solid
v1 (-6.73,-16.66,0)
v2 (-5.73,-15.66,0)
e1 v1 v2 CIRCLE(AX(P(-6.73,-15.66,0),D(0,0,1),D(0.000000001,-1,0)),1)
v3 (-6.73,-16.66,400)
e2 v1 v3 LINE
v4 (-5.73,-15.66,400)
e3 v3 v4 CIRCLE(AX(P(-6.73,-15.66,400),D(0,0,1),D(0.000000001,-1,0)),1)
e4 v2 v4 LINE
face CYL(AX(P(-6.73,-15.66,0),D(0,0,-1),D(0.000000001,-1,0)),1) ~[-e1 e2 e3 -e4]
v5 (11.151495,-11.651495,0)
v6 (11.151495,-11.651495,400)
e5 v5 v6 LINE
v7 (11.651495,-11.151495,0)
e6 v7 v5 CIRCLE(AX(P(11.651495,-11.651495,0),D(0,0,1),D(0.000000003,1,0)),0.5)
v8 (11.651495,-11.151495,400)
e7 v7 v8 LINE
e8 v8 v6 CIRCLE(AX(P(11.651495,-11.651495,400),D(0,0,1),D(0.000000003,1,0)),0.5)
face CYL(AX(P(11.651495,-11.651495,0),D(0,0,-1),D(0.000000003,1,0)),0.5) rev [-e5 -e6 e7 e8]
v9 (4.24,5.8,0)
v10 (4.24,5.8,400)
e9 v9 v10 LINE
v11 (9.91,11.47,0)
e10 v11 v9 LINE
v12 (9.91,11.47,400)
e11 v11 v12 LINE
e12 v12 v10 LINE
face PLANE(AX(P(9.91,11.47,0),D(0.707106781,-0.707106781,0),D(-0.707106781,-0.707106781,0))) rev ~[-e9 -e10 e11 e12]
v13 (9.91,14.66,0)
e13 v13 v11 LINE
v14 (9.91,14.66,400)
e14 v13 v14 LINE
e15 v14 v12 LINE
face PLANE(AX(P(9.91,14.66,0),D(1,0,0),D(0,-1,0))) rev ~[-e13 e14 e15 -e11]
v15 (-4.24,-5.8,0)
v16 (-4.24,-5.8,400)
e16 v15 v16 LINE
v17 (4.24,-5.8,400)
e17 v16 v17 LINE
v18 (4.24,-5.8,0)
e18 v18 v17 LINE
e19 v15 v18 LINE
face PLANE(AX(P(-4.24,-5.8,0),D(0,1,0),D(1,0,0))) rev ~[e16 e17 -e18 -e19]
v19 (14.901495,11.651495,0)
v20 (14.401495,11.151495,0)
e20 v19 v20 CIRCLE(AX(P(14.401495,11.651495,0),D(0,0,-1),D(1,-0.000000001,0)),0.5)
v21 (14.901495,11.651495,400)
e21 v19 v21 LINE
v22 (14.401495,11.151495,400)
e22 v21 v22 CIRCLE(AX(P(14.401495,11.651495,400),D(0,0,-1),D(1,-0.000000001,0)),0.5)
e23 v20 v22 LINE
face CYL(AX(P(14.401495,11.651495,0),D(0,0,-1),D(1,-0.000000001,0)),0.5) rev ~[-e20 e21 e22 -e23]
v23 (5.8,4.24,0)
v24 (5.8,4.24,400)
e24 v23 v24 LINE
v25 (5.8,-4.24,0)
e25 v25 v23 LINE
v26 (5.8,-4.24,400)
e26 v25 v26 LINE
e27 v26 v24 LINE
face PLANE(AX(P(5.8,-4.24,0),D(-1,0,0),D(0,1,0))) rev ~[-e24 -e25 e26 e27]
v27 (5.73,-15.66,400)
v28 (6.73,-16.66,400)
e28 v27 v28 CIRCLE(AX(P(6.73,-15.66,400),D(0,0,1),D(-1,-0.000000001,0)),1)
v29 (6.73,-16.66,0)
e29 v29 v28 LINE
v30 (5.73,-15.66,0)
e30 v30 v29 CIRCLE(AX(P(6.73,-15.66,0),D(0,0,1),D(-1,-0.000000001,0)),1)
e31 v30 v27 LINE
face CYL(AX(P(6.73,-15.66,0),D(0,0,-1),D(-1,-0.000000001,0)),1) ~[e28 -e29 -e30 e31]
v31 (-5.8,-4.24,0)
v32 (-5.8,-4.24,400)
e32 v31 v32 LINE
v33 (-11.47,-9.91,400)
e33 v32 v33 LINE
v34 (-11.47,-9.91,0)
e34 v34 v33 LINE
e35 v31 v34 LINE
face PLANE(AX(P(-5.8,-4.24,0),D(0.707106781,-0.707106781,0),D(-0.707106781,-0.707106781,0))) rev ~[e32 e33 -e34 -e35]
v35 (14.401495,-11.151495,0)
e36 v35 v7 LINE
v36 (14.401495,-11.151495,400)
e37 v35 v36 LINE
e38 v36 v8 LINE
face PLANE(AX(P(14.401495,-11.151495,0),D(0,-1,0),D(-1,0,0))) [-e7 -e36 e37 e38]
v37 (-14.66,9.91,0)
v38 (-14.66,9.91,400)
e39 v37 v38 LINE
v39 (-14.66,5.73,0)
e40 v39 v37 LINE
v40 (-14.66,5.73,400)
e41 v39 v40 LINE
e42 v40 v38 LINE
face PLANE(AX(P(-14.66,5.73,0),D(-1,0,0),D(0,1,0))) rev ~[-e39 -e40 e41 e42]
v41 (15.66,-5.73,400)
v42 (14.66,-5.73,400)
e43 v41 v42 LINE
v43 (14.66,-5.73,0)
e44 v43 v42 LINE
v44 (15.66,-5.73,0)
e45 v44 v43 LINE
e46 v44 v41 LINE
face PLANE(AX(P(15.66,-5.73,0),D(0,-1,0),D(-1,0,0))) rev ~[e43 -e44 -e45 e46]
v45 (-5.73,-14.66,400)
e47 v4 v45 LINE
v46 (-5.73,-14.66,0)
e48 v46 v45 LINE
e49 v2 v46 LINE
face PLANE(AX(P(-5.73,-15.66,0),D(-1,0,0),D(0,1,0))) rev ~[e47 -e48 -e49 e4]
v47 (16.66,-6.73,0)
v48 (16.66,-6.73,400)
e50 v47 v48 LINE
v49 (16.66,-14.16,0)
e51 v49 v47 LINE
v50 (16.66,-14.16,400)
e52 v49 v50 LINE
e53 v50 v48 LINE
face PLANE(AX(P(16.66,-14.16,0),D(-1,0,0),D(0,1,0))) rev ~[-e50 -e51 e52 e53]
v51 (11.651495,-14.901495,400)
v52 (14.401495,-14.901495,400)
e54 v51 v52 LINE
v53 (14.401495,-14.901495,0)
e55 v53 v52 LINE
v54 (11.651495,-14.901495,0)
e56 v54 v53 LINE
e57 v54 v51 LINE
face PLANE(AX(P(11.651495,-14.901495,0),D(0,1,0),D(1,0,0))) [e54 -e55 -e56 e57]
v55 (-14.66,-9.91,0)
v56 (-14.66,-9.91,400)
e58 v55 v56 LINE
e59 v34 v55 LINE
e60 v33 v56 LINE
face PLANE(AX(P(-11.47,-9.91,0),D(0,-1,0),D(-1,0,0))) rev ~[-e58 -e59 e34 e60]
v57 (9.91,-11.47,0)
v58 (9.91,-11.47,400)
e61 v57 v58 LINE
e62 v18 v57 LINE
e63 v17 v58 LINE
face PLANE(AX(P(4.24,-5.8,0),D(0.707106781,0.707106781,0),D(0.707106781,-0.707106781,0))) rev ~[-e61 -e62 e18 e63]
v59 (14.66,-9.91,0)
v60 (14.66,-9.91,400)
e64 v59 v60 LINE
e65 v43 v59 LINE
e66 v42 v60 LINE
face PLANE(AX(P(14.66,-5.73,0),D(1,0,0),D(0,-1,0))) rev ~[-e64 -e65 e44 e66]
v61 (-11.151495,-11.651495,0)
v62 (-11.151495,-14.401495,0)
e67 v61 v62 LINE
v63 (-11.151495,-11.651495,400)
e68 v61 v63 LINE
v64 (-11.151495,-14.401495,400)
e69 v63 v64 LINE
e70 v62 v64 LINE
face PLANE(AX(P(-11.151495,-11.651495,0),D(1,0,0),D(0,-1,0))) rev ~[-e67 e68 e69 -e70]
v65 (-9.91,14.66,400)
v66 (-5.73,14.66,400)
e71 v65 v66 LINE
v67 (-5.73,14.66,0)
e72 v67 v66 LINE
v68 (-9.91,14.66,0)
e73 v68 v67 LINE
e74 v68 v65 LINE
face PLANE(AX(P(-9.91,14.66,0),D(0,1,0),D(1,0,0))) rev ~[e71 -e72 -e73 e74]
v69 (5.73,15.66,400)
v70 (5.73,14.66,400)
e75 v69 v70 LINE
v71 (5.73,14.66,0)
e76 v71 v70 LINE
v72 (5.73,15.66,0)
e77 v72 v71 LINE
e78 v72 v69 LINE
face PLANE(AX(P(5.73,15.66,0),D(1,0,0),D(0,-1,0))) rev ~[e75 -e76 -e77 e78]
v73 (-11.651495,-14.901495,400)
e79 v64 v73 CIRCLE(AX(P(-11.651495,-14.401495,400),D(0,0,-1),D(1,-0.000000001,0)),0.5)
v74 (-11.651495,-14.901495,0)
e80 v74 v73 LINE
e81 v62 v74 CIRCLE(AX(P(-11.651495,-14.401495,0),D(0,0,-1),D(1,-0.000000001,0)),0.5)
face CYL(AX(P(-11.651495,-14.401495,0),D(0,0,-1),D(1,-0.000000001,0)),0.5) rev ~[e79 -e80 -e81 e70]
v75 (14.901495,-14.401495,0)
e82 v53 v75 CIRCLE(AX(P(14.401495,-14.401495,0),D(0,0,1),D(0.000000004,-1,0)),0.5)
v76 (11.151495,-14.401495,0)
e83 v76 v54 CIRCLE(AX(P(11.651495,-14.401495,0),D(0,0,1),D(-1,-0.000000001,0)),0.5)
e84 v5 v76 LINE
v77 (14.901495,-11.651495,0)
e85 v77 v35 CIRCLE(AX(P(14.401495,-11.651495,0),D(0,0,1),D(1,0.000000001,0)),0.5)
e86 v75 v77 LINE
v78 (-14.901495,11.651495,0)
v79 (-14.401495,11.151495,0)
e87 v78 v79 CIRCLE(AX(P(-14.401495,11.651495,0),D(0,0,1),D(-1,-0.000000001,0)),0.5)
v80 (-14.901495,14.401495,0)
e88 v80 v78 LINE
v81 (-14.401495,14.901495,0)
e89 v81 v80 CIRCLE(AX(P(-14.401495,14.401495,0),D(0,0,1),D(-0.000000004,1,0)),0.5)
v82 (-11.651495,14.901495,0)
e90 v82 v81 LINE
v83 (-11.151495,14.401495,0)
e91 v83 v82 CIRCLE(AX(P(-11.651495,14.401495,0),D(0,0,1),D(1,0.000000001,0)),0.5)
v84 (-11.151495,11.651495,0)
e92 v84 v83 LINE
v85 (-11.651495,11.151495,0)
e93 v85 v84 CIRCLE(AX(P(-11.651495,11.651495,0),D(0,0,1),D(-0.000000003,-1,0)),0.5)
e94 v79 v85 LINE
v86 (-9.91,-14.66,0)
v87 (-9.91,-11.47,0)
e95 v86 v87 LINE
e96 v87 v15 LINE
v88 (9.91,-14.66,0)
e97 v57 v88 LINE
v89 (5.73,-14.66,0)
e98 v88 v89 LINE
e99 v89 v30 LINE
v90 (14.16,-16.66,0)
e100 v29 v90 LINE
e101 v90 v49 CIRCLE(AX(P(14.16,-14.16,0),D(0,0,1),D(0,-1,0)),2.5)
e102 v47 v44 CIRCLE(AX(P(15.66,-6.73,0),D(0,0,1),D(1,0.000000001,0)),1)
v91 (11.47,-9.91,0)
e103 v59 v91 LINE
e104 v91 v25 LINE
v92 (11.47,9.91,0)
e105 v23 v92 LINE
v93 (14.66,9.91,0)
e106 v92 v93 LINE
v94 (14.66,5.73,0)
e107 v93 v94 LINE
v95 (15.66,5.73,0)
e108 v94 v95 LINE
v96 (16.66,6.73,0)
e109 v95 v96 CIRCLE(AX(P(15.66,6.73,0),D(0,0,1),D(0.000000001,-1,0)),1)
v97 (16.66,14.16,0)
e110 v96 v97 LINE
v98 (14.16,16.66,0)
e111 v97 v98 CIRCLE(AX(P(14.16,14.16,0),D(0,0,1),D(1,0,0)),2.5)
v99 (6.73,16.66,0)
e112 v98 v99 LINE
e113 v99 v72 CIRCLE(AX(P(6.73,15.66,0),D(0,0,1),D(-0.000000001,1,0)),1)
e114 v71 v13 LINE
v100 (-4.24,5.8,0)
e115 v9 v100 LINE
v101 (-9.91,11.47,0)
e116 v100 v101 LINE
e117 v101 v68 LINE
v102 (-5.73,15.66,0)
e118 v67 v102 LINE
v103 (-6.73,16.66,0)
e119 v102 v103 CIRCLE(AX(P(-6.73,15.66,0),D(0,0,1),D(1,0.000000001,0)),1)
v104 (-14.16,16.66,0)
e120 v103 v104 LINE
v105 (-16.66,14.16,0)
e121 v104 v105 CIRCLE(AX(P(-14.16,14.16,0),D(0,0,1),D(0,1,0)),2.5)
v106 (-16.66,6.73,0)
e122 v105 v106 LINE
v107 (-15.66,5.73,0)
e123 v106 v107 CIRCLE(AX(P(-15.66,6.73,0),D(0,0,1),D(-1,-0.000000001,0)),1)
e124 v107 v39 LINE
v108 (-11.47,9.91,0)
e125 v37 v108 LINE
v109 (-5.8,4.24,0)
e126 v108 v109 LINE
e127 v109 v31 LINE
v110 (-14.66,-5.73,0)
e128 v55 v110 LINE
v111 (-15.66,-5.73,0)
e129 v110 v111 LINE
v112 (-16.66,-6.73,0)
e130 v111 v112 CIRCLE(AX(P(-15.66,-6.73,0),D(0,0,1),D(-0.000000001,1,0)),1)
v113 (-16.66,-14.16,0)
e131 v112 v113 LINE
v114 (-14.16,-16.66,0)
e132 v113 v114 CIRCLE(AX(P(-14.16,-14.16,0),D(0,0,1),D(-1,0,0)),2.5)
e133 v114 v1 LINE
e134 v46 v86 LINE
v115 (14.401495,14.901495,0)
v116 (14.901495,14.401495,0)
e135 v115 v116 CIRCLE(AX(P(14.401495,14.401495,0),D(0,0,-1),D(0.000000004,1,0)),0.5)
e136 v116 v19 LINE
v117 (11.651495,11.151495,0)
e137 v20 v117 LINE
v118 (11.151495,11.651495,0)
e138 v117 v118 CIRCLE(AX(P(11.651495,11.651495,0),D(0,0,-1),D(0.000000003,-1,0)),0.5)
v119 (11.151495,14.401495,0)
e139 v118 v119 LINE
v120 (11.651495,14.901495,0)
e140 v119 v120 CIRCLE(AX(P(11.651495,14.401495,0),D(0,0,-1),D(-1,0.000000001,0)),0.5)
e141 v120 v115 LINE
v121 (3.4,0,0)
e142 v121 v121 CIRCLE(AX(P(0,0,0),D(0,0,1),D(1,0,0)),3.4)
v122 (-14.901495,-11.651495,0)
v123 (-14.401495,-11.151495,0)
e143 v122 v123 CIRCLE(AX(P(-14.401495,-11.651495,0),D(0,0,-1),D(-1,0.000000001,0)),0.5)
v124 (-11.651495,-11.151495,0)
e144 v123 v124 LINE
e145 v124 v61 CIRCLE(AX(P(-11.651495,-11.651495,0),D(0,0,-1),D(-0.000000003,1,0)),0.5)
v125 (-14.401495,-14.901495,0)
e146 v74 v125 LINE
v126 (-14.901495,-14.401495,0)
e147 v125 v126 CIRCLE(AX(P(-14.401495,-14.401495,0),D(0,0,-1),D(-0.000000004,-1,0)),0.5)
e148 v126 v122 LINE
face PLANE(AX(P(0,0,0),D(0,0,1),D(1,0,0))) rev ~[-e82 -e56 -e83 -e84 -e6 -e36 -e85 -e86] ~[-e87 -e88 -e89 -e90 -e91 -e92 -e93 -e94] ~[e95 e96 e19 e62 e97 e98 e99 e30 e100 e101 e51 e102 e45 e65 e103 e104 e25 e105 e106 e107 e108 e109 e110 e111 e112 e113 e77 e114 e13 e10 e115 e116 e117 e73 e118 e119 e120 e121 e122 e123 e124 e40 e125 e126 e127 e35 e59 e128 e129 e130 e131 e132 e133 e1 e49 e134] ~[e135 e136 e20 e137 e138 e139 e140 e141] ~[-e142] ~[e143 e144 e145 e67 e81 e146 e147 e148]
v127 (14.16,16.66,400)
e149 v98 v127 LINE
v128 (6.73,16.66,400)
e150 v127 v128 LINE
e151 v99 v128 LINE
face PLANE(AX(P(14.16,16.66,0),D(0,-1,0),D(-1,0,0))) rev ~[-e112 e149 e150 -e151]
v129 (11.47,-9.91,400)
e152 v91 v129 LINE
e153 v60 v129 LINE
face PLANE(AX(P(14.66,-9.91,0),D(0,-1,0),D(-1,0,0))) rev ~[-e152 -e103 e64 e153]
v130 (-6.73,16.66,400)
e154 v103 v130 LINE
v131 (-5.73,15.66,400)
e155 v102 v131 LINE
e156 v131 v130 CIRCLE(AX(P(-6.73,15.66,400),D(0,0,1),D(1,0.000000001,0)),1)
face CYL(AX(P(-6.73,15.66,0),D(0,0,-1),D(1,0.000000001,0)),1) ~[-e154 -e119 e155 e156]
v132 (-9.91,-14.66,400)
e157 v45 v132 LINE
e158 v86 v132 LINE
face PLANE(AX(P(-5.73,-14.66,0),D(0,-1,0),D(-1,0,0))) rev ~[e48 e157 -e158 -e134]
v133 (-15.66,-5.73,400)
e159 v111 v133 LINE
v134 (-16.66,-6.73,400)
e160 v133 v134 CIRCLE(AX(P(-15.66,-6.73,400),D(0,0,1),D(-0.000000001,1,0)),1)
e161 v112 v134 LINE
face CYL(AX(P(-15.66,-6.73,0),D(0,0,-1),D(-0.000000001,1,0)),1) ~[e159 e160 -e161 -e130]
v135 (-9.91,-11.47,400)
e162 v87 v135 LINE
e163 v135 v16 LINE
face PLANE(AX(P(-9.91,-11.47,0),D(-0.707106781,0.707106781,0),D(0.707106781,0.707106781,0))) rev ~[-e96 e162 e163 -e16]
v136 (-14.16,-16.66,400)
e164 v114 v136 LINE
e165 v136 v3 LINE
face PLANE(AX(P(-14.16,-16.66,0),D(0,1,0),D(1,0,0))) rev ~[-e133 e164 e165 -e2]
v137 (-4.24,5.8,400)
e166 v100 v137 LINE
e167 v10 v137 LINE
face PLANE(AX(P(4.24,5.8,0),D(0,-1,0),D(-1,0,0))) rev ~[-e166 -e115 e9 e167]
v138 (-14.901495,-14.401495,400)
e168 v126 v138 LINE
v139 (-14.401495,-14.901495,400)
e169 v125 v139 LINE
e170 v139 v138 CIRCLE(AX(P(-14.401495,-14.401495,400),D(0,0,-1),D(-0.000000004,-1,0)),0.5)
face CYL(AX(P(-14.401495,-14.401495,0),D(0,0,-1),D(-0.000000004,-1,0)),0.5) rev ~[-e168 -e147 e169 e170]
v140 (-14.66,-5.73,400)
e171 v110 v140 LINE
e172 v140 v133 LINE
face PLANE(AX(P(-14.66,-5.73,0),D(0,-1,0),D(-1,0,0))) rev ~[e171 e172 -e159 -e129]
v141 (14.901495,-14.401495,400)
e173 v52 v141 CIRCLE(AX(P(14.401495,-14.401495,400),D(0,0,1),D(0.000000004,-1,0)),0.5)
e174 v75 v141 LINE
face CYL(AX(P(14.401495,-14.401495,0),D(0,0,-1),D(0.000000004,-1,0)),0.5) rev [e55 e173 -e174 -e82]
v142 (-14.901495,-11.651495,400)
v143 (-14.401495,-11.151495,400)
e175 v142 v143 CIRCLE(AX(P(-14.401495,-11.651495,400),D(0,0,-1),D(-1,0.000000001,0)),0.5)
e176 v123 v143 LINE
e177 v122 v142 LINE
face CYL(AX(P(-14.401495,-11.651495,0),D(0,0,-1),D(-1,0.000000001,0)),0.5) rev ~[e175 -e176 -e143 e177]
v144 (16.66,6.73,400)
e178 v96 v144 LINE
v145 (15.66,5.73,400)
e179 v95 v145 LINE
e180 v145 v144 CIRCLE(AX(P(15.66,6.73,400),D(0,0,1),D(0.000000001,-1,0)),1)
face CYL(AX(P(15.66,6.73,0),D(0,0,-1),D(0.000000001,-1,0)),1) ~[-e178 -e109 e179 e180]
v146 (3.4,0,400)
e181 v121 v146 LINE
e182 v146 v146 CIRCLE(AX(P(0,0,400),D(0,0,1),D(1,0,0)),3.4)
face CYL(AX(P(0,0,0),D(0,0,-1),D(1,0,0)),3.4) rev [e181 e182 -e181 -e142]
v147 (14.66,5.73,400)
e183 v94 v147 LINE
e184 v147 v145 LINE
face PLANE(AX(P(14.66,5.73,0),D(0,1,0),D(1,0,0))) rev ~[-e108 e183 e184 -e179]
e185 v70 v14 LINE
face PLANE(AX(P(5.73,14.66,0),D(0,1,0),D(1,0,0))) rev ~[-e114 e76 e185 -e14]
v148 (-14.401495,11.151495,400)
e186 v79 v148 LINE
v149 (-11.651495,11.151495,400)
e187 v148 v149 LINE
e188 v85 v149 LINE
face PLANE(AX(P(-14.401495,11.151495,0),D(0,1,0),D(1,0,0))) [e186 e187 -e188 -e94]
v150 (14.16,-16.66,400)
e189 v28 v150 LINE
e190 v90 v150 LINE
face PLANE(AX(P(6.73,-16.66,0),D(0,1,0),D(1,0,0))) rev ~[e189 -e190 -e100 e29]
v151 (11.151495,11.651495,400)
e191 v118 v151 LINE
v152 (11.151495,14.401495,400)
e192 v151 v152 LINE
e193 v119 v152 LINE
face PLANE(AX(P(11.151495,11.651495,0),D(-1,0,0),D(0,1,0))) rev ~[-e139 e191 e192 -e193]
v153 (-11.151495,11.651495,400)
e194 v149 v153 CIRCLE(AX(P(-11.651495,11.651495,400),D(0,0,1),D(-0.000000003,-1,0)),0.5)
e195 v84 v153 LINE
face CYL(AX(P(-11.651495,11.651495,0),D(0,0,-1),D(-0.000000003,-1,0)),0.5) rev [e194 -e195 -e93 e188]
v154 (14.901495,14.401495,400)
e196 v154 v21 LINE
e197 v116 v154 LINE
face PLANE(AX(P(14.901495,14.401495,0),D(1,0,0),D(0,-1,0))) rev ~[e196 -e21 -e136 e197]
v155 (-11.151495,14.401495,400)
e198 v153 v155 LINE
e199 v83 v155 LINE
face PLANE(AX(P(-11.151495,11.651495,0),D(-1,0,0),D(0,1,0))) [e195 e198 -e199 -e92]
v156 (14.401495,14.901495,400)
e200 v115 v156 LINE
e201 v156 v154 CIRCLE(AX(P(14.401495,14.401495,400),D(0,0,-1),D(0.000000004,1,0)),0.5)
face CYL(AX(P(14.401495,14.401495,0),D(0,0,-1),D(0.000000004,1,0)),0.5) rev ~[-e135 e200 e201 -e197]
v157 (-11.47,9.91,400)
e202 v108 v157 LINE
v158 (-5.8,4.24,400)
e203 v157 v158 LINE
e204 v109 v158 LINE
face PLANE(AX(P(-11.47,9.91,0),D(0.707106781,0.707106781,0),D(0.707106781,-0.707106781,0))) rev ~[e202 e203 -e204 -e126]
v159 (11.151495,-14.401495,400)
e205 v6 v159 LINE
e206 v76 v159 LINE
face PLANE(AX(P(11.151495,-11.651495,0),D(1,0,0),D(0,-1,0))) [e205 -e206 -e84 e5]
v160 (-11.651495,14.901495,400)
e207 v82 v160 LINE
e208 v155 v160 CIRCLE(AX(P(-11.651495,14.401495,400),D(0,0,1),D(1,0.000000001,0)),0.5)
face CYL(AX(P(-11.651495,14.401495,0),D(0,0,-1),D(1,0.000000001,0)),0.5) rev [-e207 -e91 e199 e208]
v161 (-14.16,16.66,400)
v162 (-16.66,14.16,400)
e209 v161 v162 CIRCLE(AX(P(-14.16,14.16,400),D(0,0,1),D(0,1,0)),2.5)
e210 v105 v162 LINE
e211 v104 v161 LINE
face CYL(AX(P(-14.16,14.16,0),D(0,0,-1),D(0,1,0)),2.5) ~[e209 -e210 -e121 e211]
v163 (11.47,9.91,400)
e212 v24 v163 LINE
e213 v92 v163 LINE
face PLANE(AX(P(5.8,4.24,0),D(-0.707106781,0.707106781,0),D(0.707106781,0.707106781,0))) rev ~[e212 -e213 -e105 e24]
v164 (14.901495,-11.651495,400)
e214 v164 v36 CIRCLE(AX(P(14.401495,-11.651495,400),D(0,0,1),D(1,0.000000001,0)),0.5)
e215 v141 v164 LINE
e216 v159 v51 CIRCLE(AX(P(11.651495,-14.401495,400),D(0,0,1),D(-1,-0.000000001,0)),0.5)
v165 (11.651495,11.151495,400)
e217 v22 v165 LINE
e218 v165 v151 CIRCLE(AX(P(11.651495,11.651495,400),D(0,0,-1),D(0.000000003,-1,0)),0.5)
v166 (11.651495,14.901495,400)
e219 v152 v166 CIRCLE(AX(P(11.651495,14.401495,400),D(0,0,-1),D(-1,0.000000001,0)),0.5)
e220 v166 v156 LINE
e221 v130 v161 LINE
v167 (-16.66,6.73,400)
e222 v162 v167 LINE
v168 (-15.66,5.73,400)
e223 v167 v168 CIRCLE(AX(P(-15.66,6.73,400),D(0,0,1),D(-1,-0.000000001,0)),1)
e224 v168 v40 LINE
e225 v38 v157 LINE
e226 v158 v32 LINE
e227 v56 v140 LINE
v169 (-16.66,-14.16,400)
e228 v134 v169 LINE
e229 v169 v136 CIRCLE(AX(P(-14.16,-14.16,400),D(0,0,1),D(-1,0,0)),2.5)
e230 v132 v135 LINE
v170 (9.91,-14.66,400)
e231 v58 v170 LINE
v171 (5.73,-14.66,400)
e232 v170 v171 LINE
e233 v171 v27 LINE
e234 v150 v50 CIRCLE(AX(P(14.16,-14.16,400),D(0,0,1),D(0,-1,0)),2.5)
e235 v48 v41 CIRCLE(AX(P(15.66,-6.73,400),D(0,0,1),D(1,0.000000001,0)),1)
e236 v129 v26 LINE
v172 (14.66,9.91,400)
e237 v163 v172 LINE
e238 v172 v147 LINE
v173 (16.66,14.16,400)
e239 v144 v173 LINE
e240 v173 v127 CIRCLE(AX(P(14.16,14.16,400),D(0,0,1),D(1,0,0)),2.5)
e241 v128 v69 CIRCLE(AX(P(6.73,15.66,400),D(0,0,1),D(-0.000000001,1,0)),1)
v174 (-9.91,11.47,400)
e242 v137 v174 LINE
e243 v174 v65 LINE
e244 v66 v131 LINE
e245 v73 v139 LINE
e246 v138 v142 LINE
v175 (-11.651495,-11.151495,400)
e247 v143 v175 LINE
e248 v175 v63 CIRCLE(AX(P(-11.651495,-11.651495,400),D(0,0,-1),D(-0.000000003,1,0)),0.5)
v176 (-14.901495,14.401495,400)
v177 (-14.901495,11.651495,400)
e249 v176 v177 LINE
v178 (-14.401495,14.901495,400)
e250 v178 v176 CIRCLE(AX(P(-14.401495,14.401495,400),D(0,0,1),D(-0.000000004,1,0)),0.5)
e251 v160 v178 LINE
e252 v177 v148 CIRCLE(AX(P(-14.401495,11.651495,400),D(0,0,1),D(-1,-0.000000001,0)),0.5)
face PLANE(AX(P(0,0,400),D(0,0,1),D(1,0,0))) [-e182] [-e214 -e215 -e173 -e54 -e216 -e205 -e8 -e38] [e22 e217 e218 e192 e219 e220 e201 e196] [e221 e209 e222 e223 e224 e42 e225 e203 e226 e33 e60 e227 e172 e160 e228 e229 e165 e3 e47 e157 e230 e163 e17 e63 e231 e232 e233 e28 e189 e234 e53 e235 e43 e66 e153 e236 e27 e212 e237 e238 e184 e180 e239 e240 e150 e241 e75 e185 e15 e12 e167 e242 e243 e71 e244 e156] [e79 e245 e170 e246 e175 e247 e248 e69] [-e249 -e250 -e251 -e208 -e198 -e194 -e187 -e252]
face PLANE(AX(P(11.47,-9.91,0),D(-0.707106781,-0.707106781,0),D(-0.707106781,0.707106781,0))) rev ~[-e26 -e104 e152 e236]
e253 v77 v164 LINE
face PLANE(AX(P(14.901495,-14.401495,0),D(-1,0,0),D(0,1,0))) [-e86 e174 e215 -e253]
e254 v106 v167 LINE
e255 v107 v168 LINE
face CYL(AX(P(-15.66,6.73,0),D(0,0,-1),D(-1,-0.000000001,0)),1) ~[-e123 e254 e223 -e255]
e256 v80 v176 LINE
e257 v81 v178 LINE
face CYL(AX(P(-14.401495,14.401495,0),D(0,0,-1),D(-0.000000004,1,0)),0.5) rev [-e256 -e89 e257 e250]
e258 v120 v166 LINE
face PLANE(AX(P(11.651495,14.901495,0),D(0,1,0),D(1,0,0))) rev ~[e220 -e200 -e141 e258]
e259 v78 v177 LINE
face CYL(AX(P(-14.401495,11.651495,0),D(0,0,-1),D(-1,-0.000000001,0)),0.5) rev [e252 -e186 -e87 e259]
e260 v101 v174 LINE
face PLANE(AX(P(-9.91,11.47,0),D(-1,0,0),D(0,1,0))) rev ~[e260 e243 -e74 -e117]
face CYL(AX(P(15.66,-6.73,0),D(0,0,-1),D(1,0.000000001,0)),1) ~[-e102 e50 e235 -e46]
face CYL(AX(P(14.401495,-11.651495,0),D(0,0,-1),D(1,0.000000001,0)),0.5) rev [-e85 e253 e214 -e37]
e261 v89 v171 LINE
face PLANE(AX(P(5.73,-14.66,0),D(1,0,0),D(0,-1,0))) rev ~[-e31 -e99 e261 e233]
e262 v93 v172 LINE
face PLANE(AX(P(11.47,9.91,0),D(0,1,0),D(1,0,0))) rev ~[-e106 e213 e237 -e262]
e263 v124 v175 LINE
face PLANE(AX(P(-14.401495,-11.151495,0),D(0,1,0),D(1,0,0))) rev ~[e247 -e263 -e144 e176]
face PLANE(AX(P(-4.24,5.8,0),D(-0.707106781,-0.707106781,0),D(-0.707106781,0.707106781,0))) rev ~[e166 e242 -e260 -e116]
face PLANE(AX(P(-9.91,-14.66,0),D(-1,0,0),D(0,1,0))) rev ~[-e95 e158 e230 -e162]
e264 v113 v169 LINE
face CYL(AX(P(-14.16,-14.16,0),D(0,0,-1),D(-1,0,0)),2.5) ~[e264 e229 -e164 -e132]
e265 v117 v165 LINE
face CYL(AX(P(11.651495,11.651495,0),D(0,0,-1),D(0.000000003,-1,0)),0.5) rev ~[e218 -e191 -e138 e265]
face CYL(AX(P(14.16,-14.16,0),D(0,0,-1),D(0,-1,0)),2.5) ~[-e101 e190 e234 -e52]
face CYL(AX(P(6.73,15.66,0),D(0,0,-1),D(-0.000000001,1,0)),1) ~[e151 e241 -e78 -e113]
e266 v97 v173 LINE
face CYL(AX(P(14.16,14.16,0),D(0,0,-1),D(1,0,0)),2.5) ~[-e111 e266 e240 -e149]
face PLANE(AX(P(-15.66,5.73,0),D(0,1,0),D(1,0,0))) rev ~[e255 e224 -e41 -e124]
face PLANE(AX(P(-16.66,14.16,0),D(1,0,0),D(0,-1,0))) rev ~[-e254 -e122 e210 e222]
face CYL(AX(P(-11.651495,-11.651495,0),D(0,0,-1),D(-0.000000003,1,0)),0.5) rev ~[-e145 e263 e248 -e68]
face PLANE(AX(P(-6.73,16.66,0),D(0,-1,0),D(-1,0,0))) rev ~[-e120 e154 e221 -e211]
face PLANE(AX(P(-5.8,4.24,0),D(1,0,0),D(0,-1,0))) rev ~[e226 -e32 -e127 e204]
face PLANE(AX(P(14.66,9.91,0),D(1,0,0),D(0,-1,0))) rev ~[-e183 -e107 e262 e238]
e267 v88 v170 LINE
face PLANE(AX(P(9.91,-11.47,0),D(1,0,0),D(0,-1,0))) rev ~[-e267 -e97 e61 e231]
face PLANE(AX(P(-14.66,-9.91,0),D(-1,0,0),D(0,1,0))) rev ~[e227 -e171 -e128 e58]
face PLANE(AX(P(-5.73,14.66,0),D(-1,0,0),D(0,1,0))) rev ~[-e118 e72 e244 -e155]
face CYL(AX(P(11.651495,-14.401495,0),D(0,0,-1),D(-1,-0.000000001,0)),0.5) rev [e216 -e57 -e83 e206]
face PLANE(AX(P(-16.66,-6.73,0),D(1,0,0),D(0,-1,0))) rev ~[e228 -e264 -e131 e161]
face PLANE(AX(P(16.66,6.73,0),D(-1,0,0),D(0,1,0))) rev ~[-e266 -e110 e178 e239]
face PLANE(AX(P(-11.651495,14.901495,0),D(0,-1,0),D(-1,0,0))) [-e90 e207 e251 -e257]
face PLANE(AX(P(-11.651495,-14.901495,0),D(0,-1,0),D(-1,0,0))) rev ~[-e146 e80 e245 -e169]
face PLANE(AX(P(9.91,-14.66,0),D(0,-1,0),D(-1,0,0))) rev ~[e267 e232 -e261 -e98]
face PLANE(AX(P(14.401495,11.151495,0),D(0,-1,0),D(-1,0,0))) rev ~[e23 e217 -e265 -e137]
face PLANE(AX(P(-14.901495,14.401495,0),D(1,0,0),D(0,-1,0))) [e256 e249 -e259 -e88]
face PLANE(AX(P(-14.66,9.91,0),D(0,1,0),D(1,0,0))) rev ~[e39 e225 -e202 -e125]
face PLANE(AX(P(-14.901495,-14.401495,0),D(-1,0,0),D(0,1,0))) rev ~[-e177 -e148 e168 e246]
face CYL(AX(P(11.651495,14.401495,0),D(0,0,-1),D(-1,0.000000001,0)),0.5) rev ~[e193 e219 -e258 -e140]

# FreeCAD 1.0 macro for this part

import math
import FreeCAD as App
import Part
import Sketcher
from FreeCAD import Vector

doc = App.newDocument("Part")
params = doc.addObject("Spreadsheet::Sheet", "Params")
for row, (alias, value) in enumerate([
    ("sketch1_radius", "1 mm"),
    ("sketch1_diameter", "6.8 mm"),
    ("sketch1_radius2", "2.5 mm"),
    ("sketch1_radius3", "0.5 mm"),
    ("sketch1_width", "1 mm"),
    ("pad1_length", "400 mm"),
], start=1):
    params.set(f"A{row}", alias)
    params.set(f"B{row}", "=" + value)
    params.setAlias(f"B{row}", alias)

body = doc.addObject("PartDesign::Body", "Body")

sketch1 = body.newObject("Sketcher::SketchObject", "Sketch")
sketch1.AttachmentSupport = (doc.getObject("XY_Plane"), [""])
sketch1.MapMode = "FlatFace"
sketch1.addGeometry(Part.LineSegment(Vector(5.8, -4.24, 0), Vector(5.8, 4.24, 0)), False)
sketch1.addGeometry(Part.LineSegment(Vector(5.8, 4.24, 0), Vector(11.47, 9.91, 0)), False)
sketch1.addGeometry(Part.LineSegment(Vector(11.47, 9.91, 0), Vector(14.66, 9.91, 0)), False)
sketch1.addGeometry(Part.LineSegment(Vector(14.66, 9.91, 0), Vector(14.66, 5.73, 0)), False)
sketch1.addGeometry(Part.LineSegment(Vector(14.66, 5.73, 0), Vector(15.66, 5.73, 0)), False)
sketch1.addGeometry(Part.ArcOfCircle(Part.Circle(Vector(15.66, 6.73, 0), Vector(0, 0, 1), 1), math.radians(-90), math.radians(0)), False)
sketch1.addGeometry(Part.LineSegment(Vector(16.66, 6.73, 0), Vector(16.66, 14.16, 0)), False)
sketch1.addGeometry(Part.ArcOfCircle(Part.Circle(Vector(14.16, 14.16, 0), Vector(0, 0, 1), 2.5), math.radians(0), math.radians(90)), False)
sketch1.addGeometry(Part.LineSegment(Vector(14.16, 16.66, 0), Vector(6.73, 16.66, 0)), False)
sketch1.addGeometry(Part.ArcOfCircle(Part.Circle(Vector(6.73, 15.66, 0), Vector(0, 0, 1), 1), math.radians(90), math.radians(180)), False)
sketch1.addGeometry(Part.LineSegment(Vector(5.73, 15.66, 0), Vector(5.73, 14.66, 0)), False)
sketch1.addGeometry(Part.LineSegment(Vector(5.73, 14.66, 0), Vector(9.91, 14.66, 0)), False)
sketch1.addGeometry(Part.LineSegment(Vector(9.91, 14.66, 0), Vector(9.91, 11.47, 0)), False)
sketch1.addGeometry(Part.LineSegment(Vector(9.91, 11.47, 0), Vector(4.24, 5.8, 0)), False)
sketch1.addGeometry(Part.LineSegment(Vector(4.24, 5.8, 0), Vector(-4.24, 5.8, 0)), False)
sketch1.addGeometry(Part.LineSegment(Vector(-4.24, 5.8, 0), Vector(-9.91, 11.47, 0)), False)
sketch1.addGeometry(Part.LineSegment(Vector(-9.91, 11.47, 0), Vector(-9.91, 14.66, 0)), False)
sketch1.addGeometry(Part.LineSegment(Vector(-9.91, 14.66, 0), Vector(-5.73, 14.66, 0)), False)
sketch1.addGeometry(Part.LineSegment(Vector(-5.73, 14.66, 0), Vector(-5.73, 15.66, 0)), False)
sketch1.addGeometry(Part.ArcOfCircle(Part.Circle(Vector(-6.73, 15.66, 0), Vector(0, 0, 1), 1), math.radians(0), math.radians(90)), False)
sketch1.addGeometry(Part.LineSegment(Vector(-6.73, 16.66, 0), Vector(-14.16, 16.66, 0)), False)
sketch1.addGeometry(Part.ArcOfCircle(Part.Circle(Vector(-14.16, 14.16, 0), Vector(0, 0, 1), 2.5), math.radians(90), math.radians(180)), False)
sketch1.addGeometry(Part.LineSegment(Vector(-16.66, 14.16, 0), Vector(-16.66, 6.73, 0)), False)
sketch1.addGeometry(Part.ArcOfCircle(Part.Circle(Vector(-15.66, 6.73, 0), Vector(0, 0, 1), 1), math.radians(-180), math.radians(-90)), False)
sketch1.addGeometry(Part.LineSegment(Vector(-15.66, 5.73, 0), Vector(-14.66, 5.73, 0)), False)
sketch1.addGeometry(Part.LineSegment(Vector(-14.66, 5.73, 0), Vector(-14.66, 9.91, 0)), False)
sketch1.addGeometry(Part.LineSegment(Vector(-14.66, 9.91, 0), Vector(-11.47, 9.91, 0)), False)
sketch1.addGeometry(Part.LineSegment(Vector(-11.47, 9.91, 0), Vector(-5.8, 4.24, 0)), False)
sketch1.addGeometry(Part.LineSegment(Vector(-5.8, 4.24, 0), Vector(-5.8, -4.24, 0)), False)
sketch1.addGeometry(Part.LineSegment(Vector(-5.8, -4.24, 0), Vector(-11.47, -9.91, 0)), False)
sketch1.addGeometry(Part.LineSegment(Vector(-11.47, -9.91, 0), Vector(-14.66, -9.91, 0)), False)
sketch1.addGeometry(Part.LineSegment(Vector(-14.66, -9.91, 0), Vector(-14.66, -5.73, 0)), False)
sketch1.addGeometry(Part.LineSegment(Vector(-14.66, -5.73, 0), Vector(-15.66, -5.73, 0)), False)
sketch1.addGeometry(Part.ArcOfCircle(Part.Circle(Vector(-15.66, -6.73, 0), Vector(0, 0, 1), 1), math.radians(90), math.radians(180)), False)
sketch1.addGeometry(Part.LineSegment(Vector(-16.66, -6.73, 0), Vector(-16.66, -14.16, 0)), False)
sketch1.addGeometry(Part.ArcOfCircle(Part.Circle(Vector(-14.16, -14.16, 0), Vector(0, 0, 1), 2.5), math.radians(180), math.radians(270)), False)
sketch1.addGeometry(Part.LineSegment(Vector(-14.16, -16.66, 0), Vector(-6.73, -16.66, 0)), False)
sketch1.addGeometry(Part.ArcOfCircle(Part.Circle(Vector(-6.73, -15.66, 0), Vector(0, 0, 1), 1), math.radians(-90), math.radians(0)), False)
sketch1.addGeometry(Part.LineSegment(Vector(-5.73, -15.66, 0), Vector(-5.73, -14.66, 0)), False)
sketch1.addGeometry(Part.LineSegment(Vector(-5.73, -14.66, 0), Vector(-9.91, -14.66, 0)), False)
sketch1.addGeometry(Part.LineSegment(Vector(-9.91, -14.66, 0), Vector(-9.91, -11.47, 0)), False)
sketch1.addGeometry(Part.LineSegment(Vector(-9.91, -11.47, 0), Vector(-4.24, -5.8, 0)), False)
sketch1.addGeometry(Part.LineSegment(Vector(-4.24, -5.8, 0), Vector(4.24, -5.8, 0)), False)
sketch1.addGeometry(Part.LineSegment(Vector(4.24, -5.8, 0), Vector(9.91, -11.47, 0)), False)
sketch1.addGeometry(Part.LineSegment(Vector(9.91, -11.47, 0), Vector(9.91, -14.66, 0)), False)
sketch1.addGeometry(Part.LineSegment(Vector(9.91, -14.66, 0), Vector(5.73, -14.66, 0)), False)
sketch1.addGeometry(Part.LineSegment(Vector(5.73, -14.66, 0), Vector(5.73, -15.66, 0)), False)
sketch1.addGeometry(Part.ArcOfCircle(Part.Circle(Vector(6.73, -15.66, 0), Vector(0, 0, 1), 1), math.radians(-180), math.radians(-90)), False)
sketch1.addGeometry(Part.LineSegment(Vector(6.73, -16.66, 0), Vector(14.16, -16.66, 0)), False)
sketch1.addGeometry(Part.ArcOfCircle(Part.Circle(Vector(14.16, -14.16, 0), Vector(0, 0, 1), 2.5), math.radians(-90), math.radians(0)), False)
sketch1.addGeometry(Part.LineSegment(Vector(16.66, -14.16, 0), Vector(16.66, -6.73, 0)), False)
sketch1.addGeometry(Part.ArcOfCircle(Part.Circle(Vector(15.66, -6.73, 0), Vector(0, 0, 1), 1), math.radians(0), math.radians(90)), False)
sketch1.addGeometry(Part.LineSegment(Vector(15.66, -5.73, 0), Vector(14.66, -5.73, 0)), False)
sketch1.addGeometry(Part.LineSegment(Vector(14.66, -5.73, 0), Vector(14.66, -9.91, 0)), False)
sketch1.addGeometry(Part.LineSegment(Vector(14.66, -9.91, 0), Vector(11.47, -9.91, 0)), False)
sketch1.addGeometry(Part.LineSegment(Vector(11.47, -9.91, 0), Vector(5.8, -4.24, 0)), False)
sketch1.addGeometry(Part.ArcOfCircle(Part.Circle(Vector(-11.65, -14.4, 0), Vector(0, 0, 1), 0.5), math.radians(-90), math.radians(0)), False)
sketch1.addGeometry(Part.LineSegment(Vector(-11.65, -14.9, 0), Vector(-14.4, -14.9, 0)), False)
sketch1.addGeometry(Part.ArcOfCircle(Part.Circle(Vector(-14.4, -14.4, 0), Vector(0, 0, 1), 0.5), math.radians(-180), math.radians(-90)), False)
sketch1.addGeometry(Part.LineSegment(Vector(-14.9, -14.4, 0), Vector(-14.9, -11.65, 0)), False)
sketch1.addGeometry(Part.ArcOfCircle(Part.Circle(Vector(-14.4, -11.65, 0), Vector(0, 0, 1), 0.5), math.radians(90), math.radians(180)), False)
sketch1.addGeometry(Part.LineSegment(Vector(-14.4, -11.15, 0), Vector(-11.65, -11.15, 0)), False)
sketch1.addGeometry(Part.ArcOfCircle(Part.Circle(Vector(-11.65, -11.65, 0), Vector(0, 0, 1), 0.5), math.radians(0), math.radians(90)), False)
sketch1.addGeometry(Part.LineSegment(Vector(-11.15, -11.65, 0), Vector(-11.15, -14.4, 0)), False)
sketch1.addGeometry(Part.Circle(Vector(0, 0, 0), Vector(0, 0, 1), 3.4), False)
sketch1.addGeometry(Part.LineSegment(Vector(14.9, -11.65, 0), Vector(14.9, -14.4, 0)), False)
sketch1.addGeometry(Part.ArcOfCircle(Part.Circle(Vector(14.4, -14.4, 0), Vector(0, 0, 1), 0.5), math.radians(-90), math.radians(0)), False)
sketch1.addGeometry(Part.LineSegment(Vector(14.4, -14.9, 0), Vector(11.65, -14.9, 0)), False)
sketch1.addGeometry(Part.ArcOfCircle(Part.Circle(Vector(11.65, -14.4, 0), Vector(0, 0, 1), 0.5), math.radians(180), math.radians(270)), False)
sketch1.addGeometry(Part.LineSegment(Vector(11.15, -14.4, 0), Vector(11.15, -11.65, 0)), False)
sketch1.addGeometry(Part.ArcOfCircle(Part.Circle(Vector(11.65, -11.65, 0), Vector(0, 0, 1), 0.5), math.radians(90), math.radians(180)), False)
sketch1.addGeometry(Part.LineSegment(Vector(11.65, -11.15, 0), Vector(14.4, -11.15, 0)), False)
sketch1.addGeometry(Part.ArcOfCircle(Part.Circle(Vector(14.4, -11.65, 0), Vector(0, 0, 1), 0.5), math.radians(0), math.radians(90)), False)
sketch1.addGeometry(Part.LineSegment(Vector(-14.9, 11.65, 0), Vector(-14.9, 14.4, 0)), False)
sketch1.addGeometry(Part.ArcOfCircle(Part.Circle(Vector(-14.4, 14.4, 0), Vector(0, 0, 1), 0.5), math.radians(90), math.radians(180)), False)
sketch1.addGeometry(Part.LineSegment(Vector(-14.4, 14.9, 0), Vector(-11.65, 14.9, 0)), False)
sketch1.addGeometry(Part.ArcOfCircle(Part.Circle(Vector(-11.65, 14.4, 0), Vector(0, 0, 1), 0.5), math.radians(0), math.radians(90)), False)
sketch1.addGeometry(Part.LineSegment(Vector(-11.15, 14.4, 0), Vector(-11.15, 11.65, 0)), False)
sketch1.addGeometry(Part.ArcOfCircle(Part.Circle(Vector(-11.65, 11.65, 0), Vector(0, 0, 1), 0.5), math.radians(-90), math.radians(0)), False)
sketch1.addGeometry(Part.LineSegment(Vector(-11.65, 11.15, 0), Vector(-14.4, 11.15, 0)), False)
sketch1.addGeometry(Part.ArcOfCircle(Part.Circle(Vector(-14.4, 11.65, 0), Vector(0, 0, 1), 0.5), math.radians(180), math.radians(270)), False)
sketch1.addGeometry(Part.ArcOfCircle(Part.Circle(Vector(11.65, 14.4, 0), Vector(0, 0, 1), 0.5), math.radians(90), math.radians(180)), False)
sketch1.addGeometry(Part.LineSegment(Vector(11.65, 14.9, 0), Vector(14.4, 14.9, 0)), False)
sketch1.addGeometry(Part.ArcOfCircle(Part.Circle(Vector(14.4, 14.4, 0), Vector(0, 0, 1), 0.5), math.radians(0), math.radians(90)), False)
sketch1.addGeometry(Part.LineSegment(Vector(14.9, 14.4, 0), Vector(14.9, 11.65, 0)), False)
sketch1.addGeometry(Part.ArcOfCircle(Part.Circle(Vector(14.4, 11.65, 0), Vector(0, 0, 1), 0.5), math.radians(-90), math.radians(0)), False)
sketch1.addGeometry(Part.LineSegment(Vector(14.4, 11.15, 0), Vector(11.65, 11.15, 0)), False)
sketch1.addGeometry(Part.ArcOfCircle(Part.Circle(Vector(11.65, 11.65, 0), Vector(0, 0, 1), 0.5), math.radians(180), math.radians(270)), False)
sketch1.addGeometry(Part.LineSegment(Vector(11.15, 11.65, 0), Vector(11.15, 14.4, 0)), False)
sketch1.addConstraint(Sketcher.Constraint("Coincident", 0, 2, 1, 1))
sketch1.addConstraint(Sketcher.Constraint("Coincident", 1, 2, 2, 1))
sketch1.addConstraint(Sketcher.Constraint("Coincident", 2, 2, 3, 1))
sketch1.addConstraint(Sketcher.Constraint("Coincident", 3, 2, 4, 1))
sketch1.addConstraint(Sketcher.Constraint("Tangent", 4, 2, 5, 1))
sketch1.addConstraint(Sketcher.Constraint("Tangent", 5, 2, 6, 1))
sketch1.addConstraint(Sketcher.Constraint("Tangent", 6, 2, 7, 1))
sketch1.addConstraint(Sketcher.Constraint("Tangent", 7, 2, 8, 1))
sketch1.addConstraint(Sketcher.Constraint("Tangent", 8, 2, 9, 1))
sketch1.addConstraint(Sketcher.Constraint("Tangent", 9, 2, 10, 1))
sketch1.addConstraint(Sketcher.Constraint("Coincident", 10, 2, 11, 1))
sketch1.addConstraint(Sketcher.Constraint("Coincident", 11, 2, 12, 1))
sketch1.addConstraint(Sketcher.Constraint("Coincident", 12, 2, 13, 1))
sketch1.addConstraint(Sketcher.Constraint("Coincident", 13, 2, 14, 1))
sketch1.addConstraint(Sketcher.Constraint("Coincident", 14, 2, 15, 1))
sketch1.addConstraint(Sketcher.Constraint("Coincident", 15, 2, 16, 1))
sketch1.addConstraint(Sketcher.Constraint("Coincident", 16, 2, 17, 1))
sketch1.addConstraint(Sketcher.Constraint("Coincident", 17, 2, 18, 1))
sketch1.addConstraint(Sketcher.Constraint("Tangent", 18, 2, 19, 1))
sketch1.addConstraint(Sketcher.Constraint("Tangent", 19, 2, 20, 1))
sketch1.addConstraint(Sketcher.Constraint("Tangent", 20, 2, 21, 1))
sketch1.addConstraint(Sketcher.Constraint("Tangent", 21, 2, 22, 1))
sketch1.addConstraint(Sketcher.Constraint("Tangent", 22, 2, 23, 1))
sketch1.addConstraint(Sketcher.Constraint("Tangent", 23, 2, 24, 1))
sketch1.addConstraint(Sketcher.Constraint("Coincident", 24, 2, 25, 1))
sketch1.addConstraint(Sketcher.Constraint("Coincident", 25, 2, 26, 1))
sketch1.addConstraint(Sketcher.Constraint("Coincident", 26, 2, 27, 1))
sketch1.addConstraint(Sketcher.Constraint("Coincident", 27, 2, 28, 1))
sketch1.addConstraint(Sketcher.Constraint("Coincident", 28, 2, 29, 1))
sketch1.addConstraint(Sketcher.Constraint("Coincident", 29, 2, 30, 1))
sketch1.addConstraint(Sketcher.Constraint("Coincident", 30, 2, 31, 1))
sketch1.addConstraint(Sketcher.Constraint("Coincident", 31, 2, 32, 1))
sketch1.addConstraint(Sketcher.Constraint("Tangent", 32, 2, 33, 1))
sketch1.addConstraint(Sketcher.Constraint("Tangent", 33, 2, 34, 1))
sketch1.addConstraint(Sketcher.Constraint("Tangent", 34, 2, 35, 1))
sketch1.addConstraint(Sketcher.Constraint("Tangent", 35, 2, 36, 1))
sketch1.addConstraint(Sketcher.Constraint("Tangent", 36, 2, 37, 1))
sketch1.addConstraint(Sketcher.Constraint("Tangent", 37, 2, 38, 1))
sketch1.addConstraint(Sketcher.Constraint("Coincident", 38, 2, 39, 1))
sketch1.addConstraint(Sketcher.Constraint("Coincident", 39, 2, 40, 1))
sketch1.addConstraint(Sketcher.Constraint("Coincident", 40, 2, 41, 1))
sketch1.addConstraint(Sketcher.Constraint("Coincident", 41, 2, 42, 1))
sketch1.addConstraint(Sketcher.Constraint("Coincident", 42, 2, 43, 1))
sketch1.addConstraint(Sketcher.Constraint("Coincident", 43, 2, 44, 1))
sketch1.addConstraint(Sketcher.Constraint("Coincident", 44, 2, 45, 1))
sketch1.addConstraint(Sketcher.Constraint("Coincident", 45, 2, 46, 1))
sketch1.addConstraint(Sketcher.Constraint("Tangent", 46, 2, 47, 1))
sketch1.addConstraint(Sketcher.Constraint("Tangent", 47, 2, 48, 1))
sketch1.addConstraint(Sketcher.Constraint("Tangent", 48, 2, 49, 1))
sketch1.addConstraint(Sketcher.Constraint("Tangent", 49, 2, 50, 1))
sketch1.addConstraint(Sketcher.Constraint("Tangent", 50, 2, 51, 1))
sketch1.addConstraint(Sketcher.Constraint("Tangent", 51, 2, 52, 1))
sketch1.addConstraint(Sketcher.Constraint("Coincident", 52, 2, 53, 1))
sketch1.addConstraint(Sketcher.Constraint("Coincident", 53, 2, 54, 1))
sketch1.addConstraint(Sketcher.Constraint("Coincident", 54, 2, 55, 1))
sketch1.addConstraint(Sketcher.Constraint("Coincident", 55, 2, 0, 1))
sketch1.addConstraint(Sketcher.Constraint("Tangent", 56, 1, 57, 1))
sketch1.addConstraint(Sketcher.Constraint("Tangent", 57, 2, 58, 2))
sketch1.addConstraint(Sketcher.Constraint("Tangent", 58, 1, 59, 1))
sketch1.addConstraint(Sketcher.Constraint("Tangent", 59, 2, 60, 2))
sketch1.addConstraint(Sketcher.Constraint("Tangent", 60, 1, 61, 1))
sketch1.addConstraint(Sketcher.Constraint("Tangent", 61, 2, 62, 2))
sketch1.addConstraint(Sketcher.Constraint("Tangent", 62, 1, 63, 1))
sketch1.addConstraint(Sketcher.Constraint("Tangent", 63, 2, 56, 2))
sketch1.addConstraint(Sketcher.Constraint("Tangent", 65, 2, 66, 2))
sketch1.addConstraint(Sketcher.Constraint("Tangent", 66, 1, 67, 1))
sketch1.addConstraint(Sketcher.Constraint("Tangent", 67, 2, 68, 2))
sketch1.addConstraint(Sketcher.Constraint("Tangent", 68, 1, 69, 1))
sketch1.addConstraint(Sketcher.Constraint("Tangent", 69, 2, 70, 2))
sketch1.addConstraint(Sketcher.Constraint("Tangent", 70, 1, 71, 1))
sketch1.addConstraint(Sketcher.Constraint("Tangent", 71, 2, 72, 2))
sketch1.addConstraint(Sketcher.Constraint("Tangent", 72, 1, 65, 1))
sketch1.addConstraint(Sketcher.Constraint("Tangent", 73, 2, 74, 2))
sketch1.addConstraint(Sketcher.Constraint("Tangent", 74, 1, 75, 1))
sketch1.addConstraint(Sketcher.Constraint("Tangent", 75, 2, 76, 2))
sketch1.addConstraint(Sketcher.Constraint("Tangent", 76, 1, 77, 1))
sketch1.addConstraint(Sketcher.Constraint("Tangent", 77, 2, 78, 2))
sketch1.addConstraint(Sketcher.Constraint("Tangent", 78, 1, 79, 1))
sketch1.addConstraint(Sketcher.Constraint("Tangent", 79, 2, 80, 2))
sketch1.addConstraint(Sketcher.Constraint("Tangent", 80, 1, 73, 1))
sketch1.addConstraint(Sketcher.Constraint("Tangent", 81, 1, 82, 1))
sketch1.addConstraint(Sketcher.Constraint("Tangent", 82, 2, 83, 2))
sketch1.addConstraint(Sketcher.Constraint("Tangent", 83, 1, 84, 1))
sketch1.addConstraint(Sketcher.Constraint("Tangent", 84, 2, 85, 2))
sketch1.addConstraint(Sketcher.Constraint("Tangent", 85, 1, 86, 1))
sketch1.addConstraint(Sketcher.Constraint("Tangent", 86, 2, 87, 2))
sketch1.addConstraint(Sketcher.Constraint("Tangent", 87, 1, 88, 1))
sketch1.addConstraint(Sketcher.Constraint("Tangent", 88, 2, 81, 2))
sketch1.addConstraint(Sketcher.Constraint("Vertical", 0))
sketch1.addConstraint(Sketcher.Constraint("Horizontal", 2))
sketch1.addConstraint(Sketcher.Constraint("Vertical", 3))
sketch1.addConstraint(Sketcher.Constraint("Horizontal", 4))
sketch1.addConstraint(Sketcher.Constraint("Vertical", 6))
sketch1.addConstraint(Sketcher.Constraint("Horizontal", 8))
sketch1.addConstraint(Sketcher.Constraint("Vertical", 10))
sketch1.addConstraint(Sketcher.Constraint("Horizontal", 11))
sketch1.addConstraint(Sketcher.Constraint("Vertical", 12))
sketch1.addConstraint(Sketcher.Constraint("Horizontal", 14))
sketch1.addConstraint(Sketcher.Constraint("Vertical", 16))
sketch1.addConstraint(Sketcher.Constraint("Horizontal", 17))
sketch1.addConstraint(Sketcher.Constraint("Vertical", 18))
sketch1.addConstraint(Sketcher.Constraint("Horizontal", 20))
sketch1.addConstraint(Sketcher.Constraint("Vertical", 22))
sketch1.addConstraint(Sketcher.Constraint("Horizontal", 24))
sketch1.addConstraint(Sketcher.Constraint("Vertical", 25))
sketch1.addConstraint(Sketcher.Constraint("Horizontal", 26))
sketch1.addConstraint(Sketcher.Constraint("Vertical", 28))
sketch1.addConstraint(Sketcher.Constraint("Horizontal", 30))
sketch1.addConstraint(Sketcher.Constraint("Vertical", 31))
sketch1.addConstraint(Sketcher.Constraint("Horizontal", 32))
sketch1.addConstraint(Sketcher.Constraint("Vertical", 34))
sketch1.addConstraint(Sketcher.Constraint("Horizontal", 36))
sketch1.addConstraint(Sketcher.Constraint("Vertical", 38))
sketch1.addConstraint(Sketcher.Constraint("Horizontal", 39))
sketch1.addConstraint(Sketcher.Constraint("Vertical", 40))
sketch1.addConstraint(Sketcher.Constraint("Horizontal", 42))
sketch1.addConstraint(Sketcher.Constraint("Vertical", 44))
sketch1.addConstraint(Sketcher.Constraint("Horizontal", 45))
sketch1.addConstraint(Sketcher.Constraint("Vertical", 46))
sketch1.addConstraint(Sketcher.Constraint("Horizontal", 48))
sketch1.addConstraint(Sketcher.Constraint("Vertical", 50))
sketch1.addConstraint(Sketcher.Constraint("Horizontal", 52))
sketch1.addConstraint(Sketcher.Constraint("Vertical", 53))
sketch1.addConstraint(Sketcher.Constraint("Horizontal", 54))
sketch1.addConstraint(Sketcher.Constraint("Horizontal", 57))
sketch1.addConstraint(Sketcher.Constraint("Vertical", 59))
sketch1.addConstraint(Sketcher.Constraint("Horizontal", 61))
sketch1.addConstraint(Sketcher.Constraint("Vertical", 63))
sketch1.addConstraint(Sketcher.Constraint("Vertical", 65))
sketch1.addConstraint(Sketcher.Constraint("Horizontal", 67))
sketch1.addConstraint(Sketcher.Constraint("Vertical", 69))
sketch1.addConstraint(Sketcher.Constraint("Horizontal", 71))
sketch1.addConstraint(Sketcher.Constraint("Vertical", 73))
sketch1.addConstraint(Sketcher.Constraint("Horizontal", 75))
sketch1.addConstraint(Sketcher.Constraint("Vertical", 77))
sketch1.addConstraint(Sketcher.Constraint("Horizontal", 79))
sketch1.addConstraint(Sketcher.Constraint("Horizontal", 82))
sketch1.addConstraint(Sketcher.Constraint("Vertical", 84))
sketch1.addConstraint(Sketcher.Constraint("Horizontal", 86))
sketch1.addConstraint(Sketcher.Constraint("Vertical", 88))
sketch1.addConstraint(Sketcher.Constraint("Coincident", 64, 3, -1, 1))
sketch1.addConstraint(Sketcher.Constraint("Equal", 5, 9))
sketch1.addConstraint(Sketcher.Constraint("Equal", 9, 19))
sketch1.addConstraint(Sketcher.Constraint("Equal", 7, 21))
sketch1.addConstraint(Sketcher.Constraint("Equal", 19, 23))
sketch1.addConstraint(Sketcher.Constraint("Equal", 23, 33))
sketch1.addConstraint(Sketcher.Constraint("Equal", 21, 35))
sketch1.addConstraint(Sketcher.Constraint("Equal", 33, 37))
sketch1.addConstraint(Sketcher.Constraint("Equal", 37, 47))
sketch1.addConstraint(Sketcher.Constraint("Equal", 35, 49))
sketch1.addConstraint(Sketcher.Constraint("Equal", 47, 51))
sketch1.addConstraint(Sketcher.Constraint("Equal", 56, 58))
sketch1.addConstraint(Sketcher.Constraint("Equal", 58, 60))
sketch1.addConstraint(Sketcher.Constraint("Equal", 60, 62))
sketch1.addConstraint(Sketcher.Constraint("Equal", 62, 66))
sketch1.addConstraint(Sketcher.Constraint("Equal", 66, 68))
sketch1.addConstraint(Sketcher.Constraint("Equal", 68, 70))
sketch1.addConstraint(Sketcher.Constraint("Equal", 70, 72))
sketch1.addConstraint(Sketcher.Constraint("Equal", 72, 74))
sketch1.addConstraint(Sketcher.Constraint("Equal", 74, 76))
sketch1.addConstraint(Sketcher.Constraint("Equal", 76, 78))
sketch1.addConstraint(Sketcher.Constraint("Equal", 78, 80))
sketch1.addConstraint(Sketcher.Constraint("Equal", 80, 81))
sketch1.addConstraint(Sketcher.Constraint("Equal", 81, 83))
sketch1.addConstraint(Sketcher.Constraint("Equal", 83, 85))
sketch1.addConstraint(Sketcher.Constraint("Equal", 85, 87))
sketch1.addConstraint(Sketcher.Constraint("Symmetric", 5, 3, 33, 3, -1, 1))
sketch1.addConstraint(Sketcher.Constraint("Symmetric", 9, 3, 37, 3, -1, 1))
sketch1.addConstraint(Sketcher.Constraint("Symmetric", 19, 3, 47, 3, -1, 1))
sketch1.addConstraint(Sketcher.Constraint("Symmetric", 23, 3, 51, 3, -1, 1))
sketch1.addConstraint(Sketcher.Constraint("Symmetric", 66, 3, 74, 3, -1, 1))
sketch1.addConstraint(Sketcher.Constraint("Symmetric", 70, 3, 78, 3, -1, 1))
sketch1.addConstraint(Sketcher.Constraint("Symmetric", 56, 3, 81, 3, -1, 1))
sketch1.addConstraint(Sketcher.Constraint("Symmetric", 60, 3, 85, 3, -1, 1))
sketch1.addConstraint(Sketcher.Constraint("Symmetric", 0, 2, 28, 2, -1, 1))
sketch1.addConstraint(Sketcher.Constraint("Symmetric", 1, 2, 29, 2, -1, 1))
sketch1.addConstraint(Sketcher.Constraint("Symmetric", 11, 2, 39, 2, -1, 1))
sketch1.addConstraint(Sketcher.Constraint("Symmetric", 13, 2, 41, 2, -1, 1))
sketch1.addConstraint(Sketcher.Constraint("Symmetric", 15, 2, 43, 2, -1, 1))
sketch1.addConstraint(Sketcher.Constraint("Symmetric", 25, 2, 53, 2, -1, 1))
sketch1.addConstraint(Sketcher.Constraint("Symmetric", 9, 3, 19, 3, -2))
sketch1.addConstraint(Sketcher.Constraint("Symmetric", 5, 3, 23, 3, -2))
sketch1.addConstraint(Sketcher.Constraint("Symmetric", 58, 3, 66, 3, -2))
sketch1.addConstraint(Sketcher.Constraint("Symmetric", 62, 3, 70, 3, -2))
sketch1.addConstraint(Sketcher.Constraint("Symmetric", 12, 2, 15, 2, -2))
sketch1.addConstraint(Sketcher.Constraint("Symmetric", 2, 2, 25, 2, -2))
sketch1.addConstraint(Sketcher.Constraint("Parallel", 1, 13))
sketch1.addConstraint(Sketcher.Constraint("Perpendicular", 13, 15))
sketch1.addConstraint(Sketcher.Constraint("Parallel", 15, 27))
sketch1.addConstraint(Sketcher.Constraint("Parallel", 29, 41))
sketch1.addConstraint(Sketcher.Constraint("Perpendicular", 41, 43))
sketch1.addConstraint(Sketcher.Constraint("Parallel", 43, 55))
sketch1.addConstraint(Sketcher.Constraint("Horizontal", 11, 2, 16, 2))
sketch1.addConstraint(Sketcher.Constraint("Horizontal", 0, 2, 27, 2))
sketch1.addConstraint(Sketcher.Constraint("Horizontal", 39, 2, 44, 2))
sketch1.addConstraint(Sketcher.Constraint("Horizontal", 28, 2, 55, 2))
sketch1.addConstraint(Sketcher.Constraint("Vertical", 26, 2, 29, 2))
sketch1.addConstraint(Sketcher.Constraint("Vertical", 25, 2, 30, 2))
sketch1.addConstraint(Sketcher.Constraint("Equal", 42, 0))
sketch1.addConstraint(Sketcher.Constraint("Equal", 45, 3))
sketch1.addConstraint(Sketcher.Constraint("Equal", 48, 6))
sketch1.addConstraint(Sketcher.Constraint("Equal", 52, 10))
sketch1.addConstraint(Sketcher.Constraint("Equal", 54, 12))
sketch1.addConstraint(Sketcher.Constraint("Equal", 86, 59))
sketch1.addConstraint(Sketcher.Constraint("Equal", 1, 13))
sketch1.addConstraint(Sketcher.Constraint("Radius", 5, 1.0))
sketch1.addConstraint(Sketcher.Constraint("Diameter", 64, 6.8))
sketch1.addConstraint(Sketcher.Constraint("Radius", 7, 2.5))
sketch1.addConstraint(Sketcher.Constraint("Radius", 56, 0.5))
sketch1.addConstraint(Sketcher.Constraint("DistanceX", 4, 1, 4, 2, 1.0))
sketch1.addConstraint(Sketcher.Constraint("DistanceX", 2, 1, 2, 2, 3.19))
sketch1.addConstraint(Sketcher.Constraint("DistanceX", 8, 2, 8, 1, 7.43))
sketch1.addConstraint(Sketcher.Constraint("DistanceX", 11, 1, 11, 2, 4.18))
sketch1.addConstraint(Sketcher.Constraint("DistanceX", 14, 2, 14, 1, 8.48))
sketch1.addConstraint(Sketcher.Constraint("DistanceX", 57, 2, 57, 1, 2.75))
sketch1.addConstraint(Sketcher.Constraint("DistanceX", -1, 1, 5, 3, 15.66))
sketch1.addConstraint(Sketcher.Constraint("DistanceX", 56, 3, -1, 1, 11.651495))
sketch1.addConstraint(Sketcher.Constraint("DistanceY", 56, 3, -1, 1, 14.401495))
sketch1.setExpression("Constraints[205]", "Params.sketch1_radius")
sketch1.setExpression("Constraints[206]", "Params.sketch1_diameter")
sketch1.setExpression("Constraints[207]", "Params.sketch1_radius2")
sketch1.setExpression("Constraints[208]", "Params.sketch1_radius3")
sketch1.setExpression("Constraints[209]", "Params.sketch1_width")
pad1 = body.newObject("PartDesign::Pad", "Pad")
pad1.Profile = sketch1
pad1.setExpression("Length", "Params.pad1_length")

doc.recompute()
